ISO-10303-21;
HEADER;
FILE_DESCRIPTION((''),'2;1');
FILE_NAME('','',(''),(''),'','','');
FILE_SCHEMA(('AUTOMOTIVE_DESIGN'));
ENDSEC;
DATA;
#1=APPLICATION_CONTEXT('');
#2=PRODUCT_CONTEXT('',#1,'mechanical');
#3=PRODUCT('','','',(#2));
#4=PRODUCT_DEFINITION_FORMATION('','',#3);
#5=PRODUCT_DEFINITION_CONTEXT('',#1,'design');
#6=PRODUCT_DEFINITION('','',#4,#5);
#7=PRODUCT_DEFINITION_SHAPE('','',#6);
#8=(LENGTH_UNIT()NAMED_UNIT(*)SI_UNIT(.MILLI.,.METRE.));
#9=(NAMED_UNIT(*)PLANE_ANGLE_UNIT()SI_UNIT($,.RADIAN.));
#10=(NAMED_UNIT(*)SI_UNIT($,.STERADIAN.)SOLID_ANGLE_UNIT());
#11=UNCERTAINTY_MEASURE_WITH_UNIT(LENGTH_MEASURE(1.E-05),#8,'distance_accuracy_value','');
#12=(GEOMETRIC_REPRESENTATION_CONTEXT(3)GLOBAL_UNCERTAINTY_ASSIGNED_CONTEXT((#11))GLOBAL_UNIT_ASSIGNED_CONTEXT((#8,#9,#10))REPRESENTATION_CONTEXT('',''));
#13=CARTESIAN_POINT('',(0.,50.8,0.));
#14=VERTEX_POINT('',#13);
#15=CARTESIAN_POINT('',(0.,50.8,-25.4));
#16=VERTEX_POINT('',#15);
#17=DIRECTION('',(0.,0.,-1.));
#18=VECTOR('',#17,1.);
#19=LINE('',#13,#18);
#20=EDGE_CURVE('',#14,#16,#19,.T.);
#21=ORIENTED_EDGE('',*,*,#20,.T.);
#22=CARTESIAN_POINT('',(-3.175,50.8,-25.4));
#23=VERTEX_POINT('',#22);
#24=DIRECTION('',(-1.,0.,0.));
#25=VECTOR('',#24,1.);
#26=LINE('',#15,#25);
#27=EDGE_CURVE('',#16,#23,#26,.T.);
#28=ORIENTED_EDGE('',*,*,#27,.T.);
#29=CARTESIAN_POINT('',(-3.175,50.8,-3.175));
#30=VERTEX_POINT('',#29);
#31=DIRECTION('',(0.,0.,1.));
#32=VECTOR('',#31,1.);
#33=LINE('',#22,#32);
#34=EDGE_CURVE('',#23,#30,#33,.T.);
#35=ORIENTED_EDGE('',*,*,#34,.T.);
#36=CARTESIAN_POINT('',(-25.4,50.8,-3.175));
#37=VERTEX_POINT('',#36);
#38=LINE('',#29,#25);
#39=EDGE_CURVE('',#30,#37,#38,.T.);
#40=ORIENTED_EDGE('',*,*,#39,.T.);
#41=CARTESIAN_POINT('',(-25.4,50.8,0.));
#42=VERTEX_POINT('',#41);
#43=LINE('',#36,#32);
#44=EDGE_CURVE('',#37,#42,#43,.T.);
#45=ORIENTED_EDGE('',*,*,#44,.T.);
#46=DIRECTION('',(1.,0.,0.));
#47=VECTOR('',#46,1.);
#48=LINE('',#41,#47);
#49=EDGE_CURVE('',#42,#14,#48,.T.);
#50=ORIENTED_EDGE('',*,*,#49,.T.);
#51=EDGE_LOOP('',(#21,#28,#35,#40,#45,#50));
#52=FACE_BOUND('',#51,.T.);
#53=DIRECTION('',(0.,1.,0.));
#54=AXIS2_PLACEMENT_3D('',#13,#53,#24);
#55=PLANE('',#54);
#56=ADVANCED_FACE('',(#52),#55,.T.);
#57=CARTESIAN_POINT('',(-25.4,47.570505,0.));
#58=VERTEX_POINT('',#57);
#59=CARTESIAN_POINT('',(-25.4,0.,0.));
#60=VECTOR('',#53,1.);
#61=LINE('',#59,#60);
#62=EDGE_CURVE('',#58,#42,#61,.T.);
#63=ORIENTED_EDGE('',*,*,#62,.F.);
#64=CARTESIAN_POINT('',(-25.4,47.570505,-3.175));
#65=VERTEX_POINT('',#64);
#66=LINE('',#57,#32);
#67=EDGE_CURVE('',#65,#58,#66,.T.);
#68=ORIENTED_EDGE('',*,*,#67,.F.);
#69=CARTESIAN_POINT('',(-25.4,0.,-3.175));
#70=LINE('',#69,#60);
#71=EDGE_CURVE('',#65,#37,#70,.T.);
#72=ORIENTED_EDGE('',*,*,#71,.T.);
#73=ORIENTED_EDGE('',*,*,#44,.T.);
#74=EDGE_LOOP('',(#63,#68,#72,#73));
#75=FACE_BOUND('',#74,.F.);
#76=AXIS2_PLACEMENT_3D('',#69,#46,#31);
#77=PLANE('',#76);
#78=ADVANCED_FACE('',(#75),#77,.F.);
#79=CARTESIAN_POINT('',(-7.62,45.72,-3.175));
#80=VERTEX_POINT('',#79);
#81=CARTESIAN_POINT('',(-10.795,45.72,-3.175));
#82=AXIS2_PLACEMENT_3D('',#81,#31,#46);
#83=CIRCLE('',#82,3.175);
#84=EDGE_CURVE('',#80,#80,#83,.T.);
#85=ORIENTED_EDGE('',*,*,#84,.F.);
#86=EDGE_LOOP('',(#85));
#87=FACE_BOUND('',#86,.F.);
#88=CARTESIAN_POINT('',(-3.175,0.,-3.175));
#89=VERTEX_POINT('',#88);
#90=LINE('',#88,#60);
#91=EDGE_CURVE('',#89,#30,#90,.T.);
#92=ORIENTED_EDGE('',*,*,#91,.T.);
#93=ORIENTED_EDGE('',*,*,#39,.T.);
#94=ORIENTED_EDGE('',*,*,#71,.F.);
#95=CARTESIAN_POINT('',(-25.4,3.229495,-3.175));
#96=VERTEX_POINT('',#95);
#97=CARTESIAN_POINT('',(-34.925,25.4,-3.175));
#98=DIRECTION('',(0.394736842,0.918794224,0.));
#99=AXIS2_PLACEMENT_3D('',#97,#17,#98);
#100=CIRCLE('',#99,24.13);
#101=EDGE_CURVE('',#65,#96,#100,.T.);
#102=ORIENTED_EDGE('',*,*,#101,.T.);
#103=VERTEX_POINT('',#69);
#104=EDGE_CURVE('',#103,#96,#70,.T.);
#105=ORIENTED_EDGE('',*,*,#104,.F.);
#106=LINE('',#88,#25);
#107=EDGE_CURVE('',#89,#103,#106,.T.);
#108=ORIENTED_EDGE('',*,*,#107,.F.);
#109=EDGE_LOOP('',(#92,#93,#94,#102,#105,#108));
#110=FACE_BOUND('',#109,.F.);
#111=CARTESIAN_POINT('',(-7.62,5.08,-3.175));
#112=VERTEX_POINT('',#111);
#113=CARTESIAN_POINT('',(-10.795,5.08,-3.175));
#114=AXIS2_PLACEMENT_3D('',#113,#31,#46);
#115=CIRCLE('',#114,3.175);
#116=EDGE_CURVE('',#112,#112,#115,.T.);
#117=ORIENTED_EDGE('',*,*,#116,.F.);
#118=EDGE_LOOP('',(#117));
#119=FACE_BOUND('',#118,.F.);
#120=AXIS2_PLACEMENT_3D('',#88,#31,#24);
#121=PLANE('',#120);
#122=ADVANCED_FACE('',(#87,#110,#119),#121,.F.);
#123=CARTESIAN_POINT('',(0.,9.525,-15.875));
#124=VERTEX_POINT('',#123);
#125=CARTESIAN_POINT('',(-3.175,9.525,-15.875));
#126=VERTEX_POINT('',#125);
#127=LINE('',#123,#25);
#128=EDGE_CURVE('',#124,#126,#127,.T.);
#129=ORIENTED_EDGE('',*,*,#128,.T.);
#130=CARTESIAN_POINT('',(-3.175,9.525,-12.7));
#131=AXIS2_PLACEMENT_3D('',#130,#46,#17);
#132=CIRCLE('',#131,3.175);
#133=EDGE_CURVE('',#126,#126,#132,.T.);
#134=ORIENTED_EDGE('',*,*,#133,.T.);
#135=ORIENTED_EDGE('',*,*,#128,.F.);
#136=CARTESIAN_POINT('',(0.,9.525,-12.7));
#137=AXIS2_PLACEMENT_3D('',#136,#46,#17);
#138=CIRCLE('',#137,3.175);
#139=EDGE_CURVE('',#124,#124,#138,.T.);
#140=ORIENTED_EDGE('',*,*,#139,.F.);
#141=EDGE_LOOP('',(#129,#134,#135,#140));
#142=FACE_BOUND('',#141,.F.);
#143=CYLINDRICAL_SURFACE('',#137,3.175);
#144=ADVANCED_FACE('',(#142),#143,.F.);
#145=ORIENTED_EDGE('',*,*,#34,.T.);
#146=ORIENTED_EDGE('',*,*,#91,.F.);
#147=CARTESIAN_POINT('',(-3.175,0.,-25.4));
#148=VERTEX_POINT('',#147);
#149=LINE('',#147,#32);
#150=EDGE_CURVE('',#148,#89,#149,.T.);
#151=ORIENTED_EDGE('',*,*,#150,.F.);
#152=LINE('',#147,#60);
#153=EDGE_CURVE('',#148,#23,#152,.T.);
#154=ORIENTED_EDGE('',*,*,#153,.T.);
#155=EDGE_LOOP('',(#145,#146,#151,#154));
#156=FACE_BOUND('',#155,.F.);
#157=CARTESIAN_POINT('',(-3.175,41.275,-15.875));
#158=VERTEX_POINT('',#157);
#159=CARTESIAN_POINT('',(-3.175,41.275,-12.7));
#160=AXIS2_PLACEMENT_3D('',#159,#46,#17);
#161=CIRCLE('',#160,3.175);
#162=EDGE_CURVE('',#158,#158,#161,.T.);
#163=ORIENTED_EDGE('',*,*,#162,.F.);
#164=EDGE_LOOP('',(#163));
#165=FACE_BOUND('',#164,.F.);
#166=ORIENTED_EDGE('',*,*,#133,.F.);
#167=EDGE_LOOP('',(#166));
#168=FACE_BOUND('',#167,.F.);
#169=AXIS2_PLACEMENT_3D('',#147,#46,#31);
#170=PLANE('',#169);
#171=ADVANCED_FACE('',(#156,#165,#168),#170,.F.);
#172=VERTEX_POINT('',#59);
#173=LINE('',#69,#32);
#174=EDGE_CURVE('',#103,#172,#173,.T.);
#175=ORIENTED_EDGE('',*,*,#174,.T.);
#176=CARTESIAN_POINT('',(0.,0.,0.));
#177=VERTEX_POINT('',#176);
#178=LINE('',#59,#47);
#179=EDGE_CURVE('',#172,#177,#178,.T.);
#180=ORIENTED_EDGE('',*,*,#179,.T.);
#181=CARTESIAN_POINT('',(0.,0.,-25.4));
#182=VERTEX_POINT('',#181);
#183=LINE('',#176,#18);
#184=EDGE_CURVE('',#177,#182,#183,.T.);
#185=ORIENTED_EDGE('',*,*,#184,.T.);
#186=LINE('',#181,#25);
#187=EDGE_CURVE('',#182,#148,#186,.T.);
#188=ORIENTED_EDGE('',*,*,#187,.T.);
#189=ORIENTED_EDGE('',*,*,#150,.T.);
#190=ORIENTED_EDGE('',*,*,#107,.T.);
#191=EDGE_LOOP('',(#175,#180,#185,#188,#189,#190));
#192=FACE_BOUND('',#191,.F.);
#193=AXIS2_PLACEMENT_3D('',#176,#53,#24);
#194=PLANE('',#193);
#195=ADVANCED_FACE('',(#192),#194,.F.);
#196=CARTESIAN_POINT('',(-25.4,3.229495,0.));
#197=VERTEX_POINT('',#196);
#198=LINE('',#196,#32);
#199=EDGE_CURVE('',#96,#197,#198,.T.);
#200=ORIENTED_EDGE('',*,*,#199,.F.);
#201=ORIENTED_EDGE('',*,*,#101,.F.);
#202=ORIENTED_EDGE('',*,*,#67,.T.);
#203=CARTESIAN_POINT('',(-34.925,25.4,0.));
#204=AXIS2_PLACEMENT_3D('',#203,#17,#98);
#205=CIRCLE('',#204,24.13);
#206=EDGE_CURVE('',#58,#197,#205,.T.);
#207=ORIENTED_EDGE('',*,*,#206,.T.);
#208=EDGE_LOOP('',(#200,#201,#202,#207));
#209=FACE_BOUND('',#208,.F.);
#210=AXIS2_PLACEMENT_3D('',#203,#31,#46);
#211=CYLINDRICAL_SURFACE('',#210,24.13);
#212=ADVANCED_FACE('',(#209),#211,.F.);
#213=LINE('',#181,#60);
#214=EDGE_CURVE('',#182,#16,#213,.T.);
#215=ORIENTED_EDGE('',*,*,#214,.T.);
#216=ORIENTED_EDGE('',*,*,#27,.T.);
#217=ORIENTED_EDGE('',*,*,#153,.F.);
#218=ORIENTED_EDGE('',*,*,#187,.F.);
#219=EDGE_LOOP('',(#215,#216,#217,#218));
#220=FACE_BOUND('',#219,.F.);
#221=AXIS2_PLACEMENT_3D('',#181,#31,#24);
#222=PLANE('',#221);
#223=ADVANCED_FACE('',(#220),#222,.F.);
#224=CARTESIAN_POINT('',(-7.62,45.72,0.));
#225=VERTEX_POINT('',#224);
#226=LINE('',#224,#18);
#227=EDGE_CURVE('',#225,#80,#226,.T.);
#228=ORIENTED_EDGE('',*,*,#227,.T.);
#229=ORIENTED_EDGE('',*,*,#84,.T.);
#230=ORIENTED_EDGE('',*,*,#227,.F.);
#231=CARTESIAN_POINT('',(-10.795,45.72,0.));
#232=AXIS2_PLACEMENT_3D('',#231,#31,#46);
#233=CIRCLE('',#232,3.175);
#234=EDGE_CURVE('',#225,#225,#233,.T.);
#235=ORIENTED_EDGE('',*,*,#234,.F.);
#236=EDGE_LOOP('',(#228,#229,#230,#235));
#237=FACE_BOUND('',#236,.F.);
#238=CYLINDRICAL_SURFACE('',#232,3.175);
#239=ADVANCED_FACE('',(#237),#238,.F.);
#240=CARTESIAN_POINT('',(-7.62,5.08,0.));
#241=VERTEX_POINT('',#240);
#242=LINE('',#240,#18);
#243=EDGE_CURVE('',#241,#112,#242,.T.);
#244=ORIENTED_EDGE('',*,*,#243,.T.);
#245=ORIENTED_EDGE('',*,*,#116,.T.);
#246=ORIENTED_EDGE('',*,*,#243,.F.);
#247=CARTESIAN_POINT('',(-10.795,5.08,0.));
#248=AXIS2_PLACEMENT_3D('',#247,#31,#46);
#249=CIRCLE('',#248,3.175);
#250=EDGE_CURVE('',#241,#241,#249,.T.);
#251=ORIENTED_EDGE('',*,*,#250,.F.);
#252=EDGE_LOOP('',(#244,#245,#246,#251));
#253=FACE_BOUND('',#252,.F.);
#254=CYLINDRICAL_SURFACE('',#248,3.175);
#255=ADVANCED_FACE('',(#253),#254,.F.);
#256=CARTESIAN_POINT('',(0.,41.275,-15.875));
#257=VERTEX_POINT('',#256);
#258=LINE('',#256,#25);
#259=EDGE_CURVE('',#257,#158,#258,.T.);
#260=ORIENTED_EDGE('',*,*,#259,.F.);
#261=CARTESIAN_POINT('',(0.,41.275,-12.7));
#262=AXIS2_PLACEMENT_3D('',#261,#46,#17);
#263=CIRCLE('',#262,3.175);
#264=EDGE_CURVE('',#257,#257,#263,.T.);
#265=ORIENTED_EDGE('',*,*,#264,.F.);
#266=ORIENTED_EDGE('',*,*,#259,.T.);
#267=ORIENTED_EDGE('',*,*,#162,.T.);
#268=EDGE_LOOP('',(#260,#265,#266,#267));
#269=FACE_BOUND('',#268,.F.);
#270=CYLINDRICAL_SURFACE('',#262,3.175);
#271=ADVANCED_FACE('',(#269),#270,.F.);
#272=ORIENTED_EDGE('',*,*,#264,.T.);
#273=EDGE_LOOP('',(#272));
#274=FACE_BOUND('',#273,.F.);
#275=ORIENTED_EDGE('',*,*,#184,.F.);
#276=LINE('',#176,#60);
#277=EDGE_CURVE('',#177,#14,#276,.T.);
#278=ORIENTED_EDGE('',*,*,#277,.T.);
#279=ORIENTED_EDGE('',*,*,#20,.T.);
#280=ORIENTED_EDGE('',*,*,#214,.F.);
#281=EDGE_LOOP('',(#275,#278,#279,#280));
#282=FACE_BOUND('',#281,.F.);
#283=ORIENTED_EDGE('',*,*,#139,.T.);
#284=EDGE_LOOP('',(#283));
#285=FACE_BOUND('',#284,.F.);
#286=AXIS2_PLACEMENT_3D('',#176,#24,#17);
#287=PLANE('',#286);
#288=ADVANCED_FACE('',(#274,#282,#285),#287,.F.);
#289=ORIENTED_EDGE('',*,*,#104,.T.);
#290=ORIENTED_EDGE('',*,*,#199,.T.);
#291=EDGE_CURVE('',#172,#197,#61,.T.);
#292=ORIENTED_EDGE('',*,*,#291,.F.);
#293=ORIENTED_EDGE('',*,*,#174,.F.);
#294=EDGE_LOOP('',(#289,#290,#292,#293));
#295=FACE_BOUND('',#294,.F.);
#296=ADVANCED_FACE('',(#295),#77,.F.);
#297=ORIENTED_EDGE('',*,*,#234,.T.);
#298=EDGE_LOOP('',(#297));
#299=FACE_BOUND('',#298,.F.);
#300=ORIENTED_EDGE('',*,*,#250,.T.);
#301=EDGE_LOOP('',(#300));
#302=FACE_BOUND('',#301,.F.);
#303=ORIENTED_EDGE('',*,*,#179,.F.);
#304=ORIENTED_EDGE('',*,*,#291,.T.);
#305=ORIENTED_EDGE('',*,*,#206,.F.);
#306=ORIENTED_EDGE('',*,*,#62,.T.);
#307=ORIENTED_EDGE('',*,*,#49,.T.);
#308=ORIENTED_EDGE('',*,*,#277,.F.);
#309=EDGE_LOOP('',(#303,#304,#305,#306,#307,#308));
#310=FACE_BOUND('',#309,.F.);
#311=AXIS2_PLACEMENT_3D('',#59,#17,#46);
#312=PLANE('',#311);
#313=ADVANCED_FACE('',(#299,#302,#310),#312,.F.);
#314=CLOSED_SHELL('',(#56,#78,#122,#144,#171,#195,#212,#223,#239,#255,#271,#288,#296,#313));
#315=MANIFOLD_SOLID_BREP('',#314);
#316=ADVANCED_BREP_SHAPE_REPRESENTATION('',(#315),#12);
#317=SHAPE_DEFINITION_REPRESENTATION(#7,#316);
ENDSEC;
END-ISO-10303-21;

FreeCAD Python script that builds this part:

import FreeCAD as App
import Part
import Sketcher
from FreeCAD import Vector
Q = App.Units.Quantity

doc = App.newDocument("Part")
body = doc.addObject("PartDesign::Body", "Body")

sketch1 = body.newObject("Sketcher::SketchObject", "Sketch")
sketch1.AttachmentSupport = (doc.getObject("XZ_Plane"), [""])
sketch1.MapMode = "FlatFace"
sketch1.addGeometry([
    Part.LineSegment(Vector(-25.4, 0, 0), Vector(0, 0, 0)),
    Part.LineSegment(Vector(0, 0, 0), Vector(0, -25.4, 0)),
    Part.LineSegment(Vector(0, -25.4, 0), Vector(-3.2, -25.4, 0)),
    Part.LineSegment(Vector(-3.2, -25.4, 0), Vector(-3.2, -3.2, 0)),
    Part.LineSegment(Vector(-3.2, -3.2, 0), Vector(-25.4, -3.2, 0)),
    Part.LineSegment(Vector(-25.4, -3.2, 0), Vector(-25.4, 0, 0)),
], False)
sketch1.addConstraint([
    Sketcher.Constraint("Coincident", 0, 2, 1, 1),
    Sketcher.Constraint("Coincident", 1, 2, 2, 1),
    Sketcher.Constraint("Coincident", 2, 2, 3, 1),
    Sketcher.Constraint("Coincident", 3, 2, 4, 1),
    Sketcher.Constraint("Coincident", 4, 2, 5, 1),
    Sketcher.Constraint("Coincident", 5, 2, 0, 1),
    Sketcher.Constraint("Horizontal", 0),
    Sketcher.Constraint("Vertical", 1),
    Sketcher.Constraint("Horizontal", 2),
    Sketcher.Constraint("Vertical", 3),
    Sketcher.Constraint("Horizontal", 4),
    Sketcher.Constraint("Vertical", 5),
    Sketcher.Constraint("Coincident", 0, 2, -1, 1),
    Sketcher.Constraint("Equal", 0, 1),
    Sketcher.Constraint("Equal", 4, 3),
    Sketcher.Constraint("DistanceX", 0, 1, 0, 2, Q("1 in")),
    Sketcher.Constraint("DistanceX", 2, 2, 2, 1, Q("0.125 in")),
])
pad1 = body.newObject("PartDesign::Pad", "Pad")
pad1.Profile = sketch1
pad1.Length = Q("2 in")
pad1.Reversed = True

sketch2 = body.newObject("Sketcher::SketchObject", "Sketch001")
sketch2.AttachmentSupport = (doc.getObject("XY_Plane"), [""])
sketch2.MapMode = "FlatFace"
sketch2.addGeometry([
    Part.Circle(Vector(-10.8, 45.7, 0), Vector(0, 0, 1), 3.2),
    Part.Circle(Vector(-10.8, 5.1, 0), Vector(0, 0, 1), 3.2),
    Part.Circle(Vector(-34.9, 25.4, 0), Vector(0, 0, 1), 24.1),
], False)
sketch2.addConstraint([
    Sketcher.Constraint("Equal", 0, 1),
    Sketcher.Constraint("Vertical", 0, 3, 1, 3),
    Sketcher.Constraint("Diameter", 0, Q("0.25 in")),
    Sketcher.Constraint("Diameter", 2, Q("1.9 in")),
    Sketcher.Constraint("DistanceY", -1, 1, 2, 3, Q("1 in")),
    Sketcher.Constraint("DistanceY", -1, 1, 0, 3, Q("1.8 in")),
    Sketcher.Constraint("DistanceY", -1, 1, 1, 3, Q("0.2 in")),
    Sketcher.Constraint("DistanceX", 2, 3, 0, 3, Q("0.95 in")),
    Sketcher.Constraint("DistanceX", 0, 3, -1, 1, Q("0.425 in")),
])
pocket1 = body.newObject("PartDesign::Pocket", "Pocket")
pocket1.Profile = sketch2
pocket1.Length = Q("2.5 in")

sketch3 = body.newObject("Sketcher::SketchObject", "Sketch002")
sketch3.AttachmentSupport = (doc.getObject("YZ_Plane"), [""])
sketch3.MapMode = "FlatFace"
sketch3.addGeometry([
    Part.Circle(Vector(9.5, -12.7, 0), Vector(0, 0, 1), 3.2),
    Part.Circle(Vector(41.3, -12.7, 0), Vector(0, 0, 1), 3.2),
], False)
sketch3.addConstraint([
    Sketcher.Constraint("Equal", 0, 1),
    Sketcher.Constraint("Horizontal", 0, 3, 1, 3),
    Sketcher.Constraint("Diameter", 0, Q("0.25 in")),
    Sketcher.Constraint("DistanceY", 0, 3, -1, 1, Q("0.5 in")),
    Sketcher.Constraint("DistanceX", 0, 3, 1, 3, Q("1.25 in")),
    Sketcher.Constraint("DistanceX", -1, 1, 0, 3, Q("0.375 in")),
])
pocket2 = body.newObject("PartDesign::Pocket", "Pocket001")
pocket2.Profile = sketch3
pocket2.Length = Q("2.5 in")

doc.recompute()
